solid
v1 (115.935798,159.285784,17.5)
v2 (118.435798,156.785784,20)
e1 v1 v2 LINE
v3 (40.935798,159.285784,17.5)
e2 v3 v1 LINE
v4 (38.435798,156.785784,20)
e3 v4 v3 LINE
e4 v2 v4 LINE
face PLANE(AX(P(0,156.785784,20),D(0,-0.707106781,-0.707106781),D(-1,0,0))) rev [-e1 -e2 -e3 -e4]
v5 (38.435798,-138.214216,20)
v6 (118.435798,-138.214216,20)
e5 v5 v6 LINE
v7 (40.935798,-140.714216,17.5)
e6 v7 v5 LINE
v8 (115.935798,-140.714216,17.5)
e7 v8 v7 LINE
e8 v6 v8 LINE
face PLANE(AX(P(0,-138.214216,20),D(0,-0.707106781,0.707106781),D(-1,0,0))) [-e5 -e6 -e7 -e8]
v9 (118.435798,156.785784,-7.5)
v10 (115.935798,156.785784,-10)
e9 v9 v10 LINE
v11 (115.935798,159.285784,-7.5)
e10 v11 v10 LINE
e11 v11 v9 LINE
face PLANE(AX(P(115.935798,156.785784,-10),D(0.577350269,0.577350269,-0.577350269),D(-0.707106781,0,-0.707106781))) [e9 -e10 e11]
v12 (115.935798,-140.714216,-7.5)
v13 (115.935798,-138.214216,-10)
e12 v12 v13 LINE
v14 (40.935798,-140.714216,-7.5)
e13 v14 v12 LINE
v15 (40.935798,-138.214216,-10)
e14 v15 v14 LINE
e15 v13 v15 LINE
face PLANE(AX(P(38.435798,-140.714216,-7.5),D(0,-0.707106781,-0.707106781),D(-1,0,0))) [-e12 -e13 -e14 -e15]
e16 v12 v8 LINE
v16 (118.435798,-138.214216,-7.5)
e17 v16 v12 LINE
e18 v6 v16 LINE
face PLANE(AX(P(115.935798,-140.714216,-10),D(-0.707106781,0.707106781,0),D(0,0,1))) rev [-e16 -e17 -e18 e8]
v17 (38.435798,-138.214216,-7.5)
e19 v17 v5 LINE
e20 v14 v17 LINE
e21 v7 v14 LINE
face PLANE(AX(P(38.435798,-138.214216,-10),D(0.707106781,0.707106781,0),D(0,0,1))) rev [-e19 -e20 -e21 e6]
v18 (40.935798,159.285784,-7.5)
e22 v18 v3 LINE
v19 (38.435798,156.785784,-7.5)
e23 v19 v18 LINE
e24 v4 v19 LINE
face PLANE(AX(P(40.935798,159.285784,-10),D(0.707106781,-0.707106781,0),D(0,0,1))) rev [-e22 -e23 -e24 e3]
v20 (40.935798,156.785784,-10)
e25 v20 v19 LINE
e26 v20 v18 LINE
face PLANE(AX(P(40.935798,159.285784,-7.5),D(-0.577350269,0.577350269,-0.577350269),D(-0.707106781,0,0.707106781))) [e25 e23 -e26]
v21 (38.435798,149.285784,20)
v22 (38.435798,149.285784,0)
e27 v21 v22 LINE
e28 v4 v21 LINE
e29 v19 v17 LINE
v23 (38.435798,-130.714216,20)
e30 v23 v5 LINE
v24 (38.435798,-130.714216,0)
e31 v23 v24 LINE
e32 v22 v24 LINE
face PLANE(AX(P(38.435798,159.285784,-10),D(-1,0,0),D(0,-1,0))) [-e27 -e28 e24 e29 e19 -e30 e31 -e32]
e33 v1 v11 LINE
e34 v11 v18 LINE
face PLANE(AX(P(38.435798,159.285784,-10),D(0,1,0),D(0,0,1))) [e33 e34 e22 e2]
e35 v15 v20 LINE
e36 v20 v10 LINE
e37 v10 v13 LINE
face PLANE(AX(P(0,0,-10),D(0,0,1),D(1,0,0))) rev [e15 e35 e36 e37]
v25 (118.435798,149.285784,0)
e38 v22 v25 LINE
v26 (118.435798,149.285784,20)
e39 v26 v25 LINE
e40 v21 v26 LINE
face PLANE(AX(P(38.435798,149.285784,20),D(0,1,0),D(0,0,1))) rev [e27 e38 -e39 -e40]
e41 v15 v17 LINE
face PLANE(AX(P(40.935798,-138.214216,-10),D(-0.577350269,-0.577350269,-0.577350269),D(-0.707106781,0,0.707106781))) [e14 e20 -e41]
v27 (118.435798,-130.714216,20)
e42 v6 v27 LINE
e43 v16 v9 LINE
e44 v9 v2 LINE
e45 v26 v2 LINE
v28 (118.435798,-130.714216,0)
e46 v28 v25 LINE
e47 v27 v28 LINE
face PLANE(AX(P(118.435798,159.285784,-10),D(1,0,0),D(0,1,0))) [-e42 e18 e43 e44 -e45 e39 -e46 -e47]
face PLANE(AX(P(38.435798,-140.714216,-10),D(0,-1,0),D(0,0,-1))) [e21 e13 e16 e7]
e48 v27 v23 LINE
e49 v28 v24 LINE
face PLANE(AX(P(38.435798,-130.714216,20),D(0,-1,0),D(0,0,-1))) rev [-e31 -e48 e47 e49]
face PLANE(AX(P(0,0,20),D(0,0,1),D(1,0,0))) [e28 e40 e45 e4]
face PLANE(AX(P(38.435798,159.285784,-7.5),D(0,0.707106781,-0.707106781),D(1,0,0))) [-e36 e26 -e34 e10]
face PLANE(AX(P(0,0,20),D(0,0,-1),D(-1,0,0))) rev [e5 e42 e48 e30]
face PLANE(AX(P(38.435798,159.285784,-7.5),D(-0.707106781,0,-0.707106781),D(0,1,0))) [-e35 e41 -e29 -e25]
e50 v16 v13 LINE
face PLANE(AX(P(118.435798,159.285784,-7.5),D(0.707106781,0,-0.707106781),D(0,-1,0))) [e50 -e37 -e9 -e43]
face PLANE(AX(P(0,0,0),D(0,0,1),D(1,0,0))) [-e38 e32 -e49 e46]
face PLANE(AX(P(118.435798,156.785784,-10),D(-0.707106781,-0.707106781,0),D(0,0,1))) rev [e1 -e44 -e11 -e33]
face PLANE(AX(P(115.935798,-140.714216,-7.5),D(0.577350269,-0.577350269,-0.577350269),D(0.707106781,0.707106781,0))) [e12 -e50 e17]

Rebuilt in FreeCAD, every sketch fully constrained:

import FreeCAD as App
import Part
import Sketcher
from FreeCAD import Vector
Q = App.Units.Quantity


def edges_at(feature, points):
    """Names of the edges that pass closest to the given points."""
    edges = feature.Shape.Edges
    near = lambda p: min(range(len(edges)), key=lambda i: edges[i].distToShape(Part.Vertex(*p))[0])
    return sorted({f"Edge{near(p) + 1}" for p in points})

doc = App.newDocument("Part")
params = doc.addObject("Spreadsheet::Sheet", "Params")
for row, (alias, value) in enumerate([
    ("sketch1_width", "80 mm"),
    ("sketch1_height", "300 mm"),
    ("pad1_length", "10 mm"),
    ("sketch2_width", "80 mm"),
    ("sketch2_height", "10 mm"),
    ("pad2_length", "20 mm"),
    ("chamfer_size", "2.5 mm"),
], start=1):
    params.set(f"A{row}", alias)
    params.set(f"B{row}", "=" + value)
    params.setAlias(f"B{row}", alias)

body = doc.addObject("PartDesign::Body", "Body")

# Sketch on XY plane
sketch1 = body.newObject("Sketcher::SketchObject", "Sketch")
sketch1.AttachmentSupport = (doc.getObject("XY_Plane"), [""])
sketch1.MapMode = "FlatFace"
sketch1.addGeometry([
    Part.LineSegment(Vector(38, 159, 0), Vector(38, -141, 0)),
    Part.LineSegment(Vector(38, -141, 0), Vector(118, -141, 0)),
    Part.LineSegment(Vector(118, -141, 0), Vector(118, 159, 0)),
    Part.LineSegment(Vector(118, 159, 0), Vector(38, 159, 0)),
], False)
sketch1.addConstraint([
    Sketcher.Constraint("Coincident", 0, 2, 1, 1),
    Sketcher.Constraint("Coincident", 1, 2, 2, 1),
    Sketcher.Constraint("Coincident", 2, 2, 3, 1),
    Sketcher.Constraint("Coincident", 3, 2, 0, 1),
    Sketcher.Constraint("Vertical", 0),
    Sketcher.Constraint("Horizontal", 1),
    Sketcher.Constraint("Vertical", 2),
    Sketcher.Constraint("Horizontal", 3),
    Sketcher.Constraint("DistanceX", 1, 1, 1, 2, Q("80 mm")),
    Sketcher.Constraint("DistanceY", 0, 2, 0, 1, Q("300 mm")),
    Sketcher.Constraint("DistanceX", -1, 1, 0, 2, Q("38.435798 mm")),
    Sketcher.Constraint("DistanceY", 0, 2, -1, 1, Q("140.714216 mm")),
])
sketch1.setExpression("Constraints[8]", "Params.sketch1_width")
sketch1.setExpression("Constraints[9]", "Params.sketch1_height")
pad1 = body.newObject("PartDesign::Pad", "Pad")
pad1.Profile = sketch1
pad1.setExpression("Length", "Params.pad1_length")
pad1.Reversed = True

# Sketch on XY plane
sketch2 = body.newObject("Sketcher::SketchObject", "Sketch001")
sketch2.AttachmentSupport = (doc.getObject("XY_Plane"), [""])
sketch2.MapMode = "FlatFace"
sketch2.addGeometry([
    Part.LineSegment(Vector(38, -131, 0), Vector(38, -141, 0)),  # 0
    Part.LineSegment(Vector(38, -141, 0), Vector(118, -141, 0)),  # 1
    Part.LineSegment(Vector(118, -141, 0), Vector(118, -131, 0)),  # 2
    Part.LineSegment(Vector(118, -131, 0), Vector(38, -131, 0)),  # 3
    Part.LineSegment(Vector(38, 159, 0), Vector(38, 149, 0)),  # 4
    Part.LineSegment(Vector(38, 149, 0), Vector(118, 149, 0)),  # 5
    Part.LineSegment(Vector(118, 149, 0), Vector(118, 159, 0)),  # 6
    Part.LineSegment(Vector(118, 159, 0), Vector(38, 159, 0)),  # 7
], False)
sketch2.addConstraint([
    Sketcher.Constraint("Coincident", 0, 2, 1, 1),
    Sketcher.Constraint("Coincident", 1, 2, 2, 1),
    Sketcher.Constraint("Coincident", 2, 2, 3, 1),
    Sketcher.Constraint("Coincident", 3, 2, 0, 1),
    Sketcher.Constraint("Coincident", 4, 2, 5, 1),
    Sketcher.Constraint("Coincident", 5, 2, 6, 1),
    Sketcher.Constraint("Coincident", 6, 2, 7, 1),
    Sketcher.Constraint("Coincident", 7, 2, 4, 1),
    Sketcher.Constraint("Vertical", 0),
    Sketcher.Constraint("Horizontal", 1),
    Sketcher.Constraint("Vertical", 2),
    Sketcher.Constraint("Horizontal", 3),
    Sketcher.Constraint("Vertical", 4),
    Sketcher.Constraint("Horizontal", 5),
    Sketcher.Constraint("Vertical", 6),
    Sketcher.Constraint("Horizontal", 7),
    Sketcher.Constraint("Vertical", 3, 2, 4, 2),
    Sketcher.Constraint("Vertical", 2, 2, 5, 2),
    Sketcher.Constraint("Equal", 2, 4),
    Sketcher.Constraint("DistanceX", 1, 1, 1, 2, Q("80 mm")),
    Sketcher.Constraint("DistanceY", 0, 2, 0, 1, Q("10 mm")),
    Sketcher.Constraint("DistanceY", 3, 2, 4, 2, Q("280 mm")),
    Sketcher.Constraint("DistanceX", -1, 1, 0, 2, Q("38.435798 mm")),
    Sketcher.Constraint("DistanceY", 0, 2, -1, 1, Q("140.714216 mm")),
])
sketch2.setExpression("Constraints[19]", "Params.sketch2_width")
sketch2.setExpression("Constraints[20]", "Params.sketch2_height")
pad2 = body.newObject("PartDesign::Pad", "Pad001")
pad2.Profile = sketch2
pad2.setExpression("Length", "Params.pad2_length")
doc.recompute()

chamfer = body.newObject("PartDesign::Chamfer", "Chamfer")
chamfer.Base = (pad2, edges_at(pad2, [
    (118.436, 9.286, -10),
    (78.436, 159.286, -10),
    (78.436, -140.714, 20),
    (78.436, 159.286, 20),
    (38.436, 9.286, -10),
    (78.436, -140.714, -10),
    (38.436, 159.286, 5),
    (118.436, 159.286, 5),
    (118.436, -140.714, 5),
    (38.436, -140.714, 5),
]))
chamfer.setExpression("Size", "Params.chamfer_size")

doc.recompute()
